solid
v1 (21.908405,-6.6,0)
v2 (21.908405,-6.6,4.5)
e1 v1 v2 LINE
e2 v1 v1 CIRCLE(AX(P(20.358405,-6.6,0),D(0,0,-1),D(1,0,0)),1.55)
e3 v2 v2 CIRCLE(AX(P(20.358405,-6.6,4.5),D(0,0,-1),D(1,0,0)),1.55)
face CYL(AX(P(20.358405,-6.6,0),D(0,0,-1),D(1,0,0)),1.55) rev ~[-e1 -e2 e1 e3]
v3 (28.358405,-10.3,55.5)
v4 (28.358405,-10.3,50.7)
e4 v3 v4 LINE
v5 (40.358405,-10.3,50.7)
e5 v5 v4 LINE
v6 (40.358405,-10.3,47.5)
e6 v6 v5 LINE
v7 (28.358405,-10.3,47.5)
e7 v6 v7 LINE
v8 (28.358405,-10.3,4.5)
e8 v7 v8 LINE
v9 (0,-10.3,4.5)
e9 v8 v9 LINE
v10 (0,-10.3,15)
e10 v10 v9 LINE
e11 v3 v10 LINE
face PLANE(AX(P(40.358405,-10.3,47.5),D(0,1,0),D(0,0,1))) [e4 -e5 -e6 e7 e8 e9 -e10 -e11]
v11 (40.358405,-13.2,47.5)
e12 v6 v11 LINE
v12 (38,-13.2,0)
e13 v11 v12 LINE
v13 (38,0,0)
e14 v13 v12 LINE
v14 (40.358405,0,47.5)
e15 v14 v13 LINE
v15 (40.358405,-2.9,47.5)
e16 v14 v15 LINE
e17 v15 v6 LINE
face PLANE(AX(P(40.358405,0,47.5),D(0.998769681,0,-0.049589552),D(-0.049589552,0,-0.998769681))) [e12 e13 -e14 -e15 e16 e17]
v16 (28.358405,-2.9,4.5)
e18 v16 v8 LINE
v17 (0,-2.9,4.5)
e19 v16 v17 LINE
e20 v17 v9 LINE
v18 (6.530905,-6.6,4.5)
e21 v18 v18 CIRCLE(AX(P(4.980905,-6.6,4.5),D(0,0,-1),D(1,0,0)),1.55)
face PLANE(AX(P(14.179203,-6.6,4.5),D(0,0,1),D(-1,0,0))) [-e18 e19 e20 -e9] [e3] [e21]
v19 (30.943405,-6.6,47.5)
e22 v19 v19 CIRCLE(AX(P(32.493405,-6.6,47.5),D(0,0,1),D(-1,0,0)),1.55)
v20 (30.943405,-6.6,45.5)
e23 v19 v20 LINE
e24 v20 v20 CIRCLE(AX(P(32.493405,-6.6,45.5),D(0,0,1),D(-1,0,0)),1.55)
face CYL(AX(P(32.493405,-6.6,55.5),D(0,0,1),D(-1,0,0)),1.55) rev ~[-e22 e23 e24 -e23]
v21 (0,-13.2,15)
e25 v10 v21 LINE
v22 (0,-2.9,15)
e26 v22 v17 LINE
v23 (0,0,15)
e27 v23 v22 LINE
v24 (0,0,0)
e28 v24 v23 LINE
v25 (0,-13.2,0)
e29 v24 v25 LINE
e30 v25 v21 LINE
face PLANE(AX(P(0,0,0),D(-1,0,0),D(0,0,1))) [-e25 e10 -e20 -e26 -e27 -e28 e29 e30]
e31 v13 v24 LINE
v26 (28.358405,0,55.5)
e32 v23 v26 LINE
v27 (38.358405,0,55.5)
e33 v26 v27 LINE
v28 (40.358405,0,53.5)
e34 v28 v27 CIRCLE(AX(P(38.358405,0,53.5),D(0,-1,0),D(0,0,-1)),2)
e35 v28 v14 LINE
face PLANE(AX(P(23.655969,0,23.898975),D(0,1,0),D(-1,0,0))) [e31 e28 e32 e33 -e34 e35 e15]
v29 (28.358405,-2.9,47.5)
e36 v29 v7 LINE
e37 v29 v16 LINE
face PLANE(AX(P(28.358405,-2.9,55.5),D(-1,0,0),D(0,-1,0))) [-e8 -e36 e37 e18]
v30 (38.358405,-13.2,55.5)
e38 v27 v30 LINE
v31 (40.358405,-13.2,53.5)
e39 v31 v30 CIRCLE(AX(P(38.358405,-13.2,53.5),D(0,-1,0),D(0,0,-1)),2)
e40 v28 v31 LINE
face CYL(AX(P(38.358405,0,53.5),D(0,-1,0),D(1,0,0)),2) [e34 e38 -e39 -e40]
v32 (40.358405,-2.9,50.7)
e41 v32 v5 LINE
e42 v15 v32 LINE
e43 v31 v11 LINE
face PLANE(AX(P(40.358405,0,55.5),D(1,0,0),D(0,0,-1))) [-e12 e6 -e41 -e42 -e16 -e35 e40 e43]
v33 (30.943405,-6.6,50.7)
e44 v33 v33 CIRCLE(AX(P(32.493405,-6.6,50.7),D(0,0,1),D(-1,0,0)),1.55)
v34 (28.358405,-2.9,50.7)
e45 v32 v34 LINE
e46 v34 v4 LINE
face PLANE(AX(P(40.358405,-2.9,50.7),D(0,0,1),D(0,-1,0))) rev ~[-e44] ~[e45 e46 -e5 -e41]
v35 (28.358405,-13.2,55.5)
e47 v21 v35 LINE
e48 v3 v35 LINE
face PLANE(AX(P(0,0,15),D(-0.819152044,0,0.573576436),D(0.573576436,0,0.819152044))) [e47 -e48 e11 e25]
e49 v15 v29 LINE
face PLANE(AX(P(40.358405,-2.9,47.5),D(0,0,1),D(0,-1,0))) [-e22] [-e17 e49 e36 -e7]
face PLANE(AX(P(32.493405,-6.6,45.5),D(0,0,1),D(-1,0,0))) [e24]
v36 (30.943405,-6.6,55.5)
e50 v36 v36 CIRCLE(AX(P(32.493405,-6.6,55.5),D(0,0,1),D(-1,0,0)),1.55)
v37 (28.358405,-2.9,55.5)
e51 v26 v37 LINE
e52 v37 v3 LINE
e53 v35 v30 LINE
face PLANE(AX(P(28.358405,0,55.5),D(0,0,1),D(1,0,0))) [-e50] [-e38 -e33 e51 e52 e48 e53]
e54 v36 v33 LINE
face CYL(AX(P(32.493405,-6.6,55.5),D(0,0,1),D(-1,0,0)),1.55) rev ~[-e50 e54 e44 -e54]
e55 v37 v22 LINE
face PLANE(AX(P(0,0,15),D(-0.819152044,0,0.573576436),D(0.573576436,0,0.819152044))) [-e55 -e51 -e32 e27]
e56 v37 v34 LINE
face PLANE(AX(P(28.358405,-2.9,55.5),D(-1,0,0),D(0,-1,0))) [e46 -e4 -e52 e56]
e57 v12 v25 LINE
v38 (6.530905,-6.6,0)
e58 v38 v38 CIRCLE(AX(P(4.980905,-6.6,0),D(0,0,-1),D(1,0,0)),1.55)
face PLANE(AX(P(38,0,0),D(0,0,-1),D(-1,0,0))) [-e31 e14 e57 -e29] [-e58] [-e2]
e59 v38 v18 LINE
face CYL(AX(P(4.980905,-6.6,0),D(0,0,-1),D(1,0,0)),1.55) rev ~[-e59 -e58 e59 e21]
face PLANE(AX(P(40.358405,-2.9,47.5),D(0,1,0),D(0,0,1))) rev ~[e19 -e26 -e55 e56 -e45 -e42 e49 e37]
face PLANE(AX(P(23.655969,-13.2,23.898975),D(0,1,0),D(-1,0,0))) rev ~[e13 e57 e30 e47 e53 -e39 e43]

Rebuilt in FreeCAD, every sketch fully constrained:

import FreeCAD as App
import Part
import Sketcher

V = App.Vector
Q = App.Units.Quantity


def edges_at(feature, points):
    """Names of the edges that pass closest to the given points."""
    edges = feature.Shape.Edges
    near = lambda p: min(range(len(edges)), key=lambda i: edges[i].distToShape(Part.Vertex(*p))[0])
    return sorted({f"Edge{near(p) + 1}" for p in points})

doc = App.newDocument("Part")
params = doc.addObject("Spreadsheet::Sheet", "Params")
for row, (alias, value) in enumerate([
    ("sketch1_width", "12 mm"),
    ("sketch1_width2", "38 mm"),
    ("sketch1_height", "8 mm"),
    ("sketch1_height2", "15 mm"),
    ("pad1_length", "13.2 mm"),
    ("sketch2_diameter", "3.1 mm"),
    ("pocket1_length", "80 mm"),
    ("sketch3_height", "7.4 mm"),
    ("pocket2_length", "51 mm"),
    ("sketch4_diameter", "3.1 mm"),
    ("pocket3_length", "10 mm"),
    ("fillet_radius", "2 mm"),
    ("sketch5_width", "7.4 mm"),
    ("sketch5_height", "3.2 mm"),
    ("pocket4_length", "12 mm"),
], start=1):
    params.set(f"A{row}", alias)
    params.set(f"B{row}", "=" + value)
    params.setAlias(f"B{row}", alias)

body = doc.addObject("PartDesign::Body", "Body")

# Sketch on XZ plane
sketch1 = doc.addObject("Sketcher::SketchObject", "Sketch")
body.addObject(sketch1)
sketch1.AttachmentSupport = (doc.XZ_Plane, [""])
sketch1.MapMode = "FlatFace"
sketch1.addGeometry([
    Part.LineSegment(V(40.358405, 47.5, 0), V(40.358405, 55.5, 0)),  # 0
    Part.LineSegment(V(40.358405, 55.5, 0), V(28.358405, 55.5, 0)),  # 1
    Part.LineSegment(V(28.358405, 55.5, 0), V(0, 15, 0)),  # 2
    Part.LineSegment(V(0, 15, 0), V(0, 0, 0)),  # 3
    Part.LineSegment(V(0, 0, 0), V(38, 0, 0)),  # 4
    Part.LineSegment(V(38, 0, 0), V(40.358405, 47.5, 0)),  # 5
], False)
sketch1.addConstraint([
    Sketcher.Constraint("Coincident", 0, 2, 1, 1),
    Sketcher.Constraint("Coincident", 1, 2, 2, 1),
    Sketcher.Constraint("Coincident", 2, 2, 3, 1),
    Sketcher.Constraint("Coincident", 3, 2, 4, 1),
    Sketcher.Constraint("Coincident", 4, 2, 5, 1),
    Sketcher.Constraint("Coincident", 5, 2, 0, 1),
    Sketcher.Constraint("Vertical", 0),
    Sketcher.Constraint("Horizontal", 1),
    Sketcher.Constraint("Vertical", 3),
    Sketcher.Constraint("Horizontal", 4),
    Sketcher.Constraint("Coincident", 3, 2, -1, 1),
    Sketcher.Constraint("DistanceX", 1, 2, 1, 1, 12.0),
    Sketcher.Constraint("DistanceX", 4, 1, 4, 2, 38.0),
    Sketcher.Constraint("DistanceY", 0, 1, 0, 2, 8.0),
    Sketcher.Constraint("DistanceY", 3, 2, 3, 1, 15.0),
    Sketcher.Constraint("Angle", 2, Q("-125 deg")),
    Sketcher.Constraint("DistanceY", -1, 1, 0, 2, 55.5),
])
sketch1.setExpression("Constraints[11]", "Params.sketch1_width")
sketch1.setExpression("Constraints[12]", "Params.sketch1_width2")
sketch1.setExpression("Constraints[13]", "Params.sketch1_height")
sketch1.setExpression("Constraints[14]", "Params.sketch1_height2")
pad1 = doc.addObject("PartDesign::Pad", "Pad")
body.addObject(pad1)
pad1.Profile = sketch1
pad1.setExpression("Length", "Params.pad1_length")

# Sketch on XY plane
sketch2 = doc.addObject("Sketcher::SketchObject", "Sketch001")
body.addObject(sketch2)
sketch2.AttachmentSupport = (doc.XY_Plane, [""])
sketch2.MapMode = "FlatFace"
sketch2.addGeometry([
    Part.Circle(V(4.980905, -6.6, 0), V(0, 0, 1), 1.55),
    Part.Circle(V(20.358405, -6.6, 0), V(0, 0, 1), 1.55),
], False)
sketch2.addConstraint([
    Sketcher.Constraint("Equal", 0, 1),
    Sketcher.Constraint("Horizontal", 0, 3, 1, 3),
    Sketcher.Constraint("Diameter", 0, 3.1),
    Sketcher.Constraint("DistanceY", 0, 3, -1, 1, 6.6),
    Sketcher.Constraint("DistanceX", 0, 3, 1, 3, 15.3775),
    Sketcher.Constraint("DistanceX", -1, 1, 0, 3, 4.980905),
])
sketch2.setExpression("Constraints[2]", "Params.sketch2_diameter")
pocket1 = doc.addObject("PartDesign::Pocket", "Pocket")
body.addObject(pocket1)
pocket1.Profile = sketch2
pocket1.setExpression("Length", "Params.pocket1_length")
pocket1.Reversed = True

# Sketch on XY plane
sketch3 = doc.addObject("Sketcher::SketchObject", "Sketch002")
body.addObject(sketch3)
sketch3.AttachmentSupport = (doc.XY_Plane, [""])
sketch3.MapMode = "FlatFace"
sketch3.AttachmentOffset = App.Placement(V(0, 0, 55.5), App.Rotation())
sketch3.addGeometry([
    Part.LineSegment(V(28.358405, -10.3, 0), V(28.358405, -2.9, 0)),
    Part.LineSegment(V(28.358405, -2.9, 0), V(0, -2.9, 0)),
    Part.LineSegment(V(0, -2.9, 0), V(0, -10.3, 0)),
    Part.LineSegment(V(0, -10.3, 0), V(28.358405, -10.3, 0)),
], False)
sketch3.addConstraint([
    Sketcher.Constraint("Coincident", 0, 2, 1, 1),
    Sketcher.Constraint("Coincident", 1, 2, 2, 1),
    Sketcher.Constraint("Coincident", 2, 2, 3, 1),
    Sketcher.Constraint("Coincident", 3, 2, 0, 1),
    Sketcher.Constraint("Vertical", 0),
    Sketcher.Constraint("Horizontal", 1),
    Sketcher.Constraint("Vertical", 2),
    Sketcher.Constraint("Horizontal", 3),
    Sketcher.Constraint("PointOnObject", 1, 2, -2),
    Sketcher.Constraint("DistanceY", 0, 1, 0, 2, 7.4),
    Sketcher.Constraint("DistanceY", 0, 2, -1, 1, 2.9),
    Sketcher.Constraint("DistanceX", 1, 2, 1, 1, 28.358405),
])
sketch3.setExpression("Constraints[9]", "Params.sketch3_height")
pocket2 = doc.addObject("PartDesign::Pocket", "Pocket001")
body.addObject(pocket2)
pocket2.Profile = sketch3
pocket2.setExpression("Length", "Params.pocket2_length")

# Sketch on XY plane
sketch4 = doc.addObject("Sketcher::SketchObject", "Sketch003")
body.addObject(sketch4)
sketch4.AttachmentSupport = (doc.XY_Plane, [""])
sketch4.MapMode = "FlatFace"
sketch4.AttachmentOffset = App.Placement(V(0, 0, 55.5), App.Rotation())
sketch4.addGeometry(Part.Circle(V(32.493405, -6.6, 0), V(0, 0, 1), 1.55), False)
sketch4.addConstraint([
    Sketcher.Constraint("Diameter", 0, 3.1),
    Sketcher.Constraint("DistanceY", 0, 3, -1, 1, 6.6),
    Sketcher.Constraint("DistanceX", -1, 1, 0, 3, 32.493405),
])
sketch4.setExpression("Constraints[0]", "Params.sketch4_diameter")
pocket3 = doc.addObject("PartDesign::Pocket", "Pocket002")
body.addObject(pocket3)
pocket3.Profile = sketch4
pocket3.setExpression("Length", "Params.pocket3_length")
doc.recompute()

fillet = doc.addObject("PartDesign::Fillet", "Fillet")
body.addObject(fillet)
fillet.Base = (pocket3, edges_at(pocket3, [(40.358, -6.6, 55.5)]))
fillet.setExpression("Radius", "Params.fillet_radius")

# Sketch on YZ plane
sketch5 = doc.addObject("Sketcher::SketchObject", "Sketch004")
body.addObject(sketch5)
sketch5.AttachmentSupport = (doc.YZ_Plane, [""])
sketch5.MapMode = "FlatFace"
sketch5.AttachmentOffset = App.Placement(V(0, 0, 40.358405), App.Rotation())
sketch5.addGeometry([
    Part.LineSegment(V(-10.3, 47.5, 0), V(-2.9, 47.5, 0)),
    Part.LineSegment(V(-2.9, 47.5, 0), V(-2.9, 50.7, 0)),
    Part.LineSegment(V(-2.9, 50.7, 0), V(-10.3, 50.7, 0)),
    Part.LineSegment(V(-10.3, 50.7, 0), V(-10.3, 47.5, 0)),
], False)
sketch5.addConstraint([
    Sketcher.Constraint("Coincident", 0, 2, 1, 1),
    Sketcher.Constraint("Coincident", 1, 2, 2, 1),
    Sketcher.Constraint("Coincident", 2, 2, 3, 1),
    Sketcher.Constraint("Coincident", 3, 2, 0, 1),
    Sketcher.Constraint("Horizontal", 0),
    Sketcher.Constraint("Vertical", 1),
    Sketcher.Constraint("Horizontal", 2),
    Sketcher.Constraint("Vertical", 3),
    Sketcher.Constraint("DistanceX", 0, 1, 0, 2, 7.4),
    Sketcher.Constraint("DistanceY", 1, 1, 1, 2, 3.2),
    Sketcher.Constraint("DistanceX", 0, 2, -1, 1, 2.9),
    Sketcher.Constraint("DistanceY", -1, 1, 0, 2, 47.5),
])
sketch5.setExpression("Constraints[8]", "Params.sketch5_width")
sketch5.setExpression("Constraints[9]", "Params.sketch5_height")
pocket4 = doc.addObject("PartDesign::Pocket", "Pocket003")
body.addObject(pocket4)
pocket4.Profile = sketch5
pocket4.setExpression("Length", "Params.pocket4_length")

doc.recompute()
